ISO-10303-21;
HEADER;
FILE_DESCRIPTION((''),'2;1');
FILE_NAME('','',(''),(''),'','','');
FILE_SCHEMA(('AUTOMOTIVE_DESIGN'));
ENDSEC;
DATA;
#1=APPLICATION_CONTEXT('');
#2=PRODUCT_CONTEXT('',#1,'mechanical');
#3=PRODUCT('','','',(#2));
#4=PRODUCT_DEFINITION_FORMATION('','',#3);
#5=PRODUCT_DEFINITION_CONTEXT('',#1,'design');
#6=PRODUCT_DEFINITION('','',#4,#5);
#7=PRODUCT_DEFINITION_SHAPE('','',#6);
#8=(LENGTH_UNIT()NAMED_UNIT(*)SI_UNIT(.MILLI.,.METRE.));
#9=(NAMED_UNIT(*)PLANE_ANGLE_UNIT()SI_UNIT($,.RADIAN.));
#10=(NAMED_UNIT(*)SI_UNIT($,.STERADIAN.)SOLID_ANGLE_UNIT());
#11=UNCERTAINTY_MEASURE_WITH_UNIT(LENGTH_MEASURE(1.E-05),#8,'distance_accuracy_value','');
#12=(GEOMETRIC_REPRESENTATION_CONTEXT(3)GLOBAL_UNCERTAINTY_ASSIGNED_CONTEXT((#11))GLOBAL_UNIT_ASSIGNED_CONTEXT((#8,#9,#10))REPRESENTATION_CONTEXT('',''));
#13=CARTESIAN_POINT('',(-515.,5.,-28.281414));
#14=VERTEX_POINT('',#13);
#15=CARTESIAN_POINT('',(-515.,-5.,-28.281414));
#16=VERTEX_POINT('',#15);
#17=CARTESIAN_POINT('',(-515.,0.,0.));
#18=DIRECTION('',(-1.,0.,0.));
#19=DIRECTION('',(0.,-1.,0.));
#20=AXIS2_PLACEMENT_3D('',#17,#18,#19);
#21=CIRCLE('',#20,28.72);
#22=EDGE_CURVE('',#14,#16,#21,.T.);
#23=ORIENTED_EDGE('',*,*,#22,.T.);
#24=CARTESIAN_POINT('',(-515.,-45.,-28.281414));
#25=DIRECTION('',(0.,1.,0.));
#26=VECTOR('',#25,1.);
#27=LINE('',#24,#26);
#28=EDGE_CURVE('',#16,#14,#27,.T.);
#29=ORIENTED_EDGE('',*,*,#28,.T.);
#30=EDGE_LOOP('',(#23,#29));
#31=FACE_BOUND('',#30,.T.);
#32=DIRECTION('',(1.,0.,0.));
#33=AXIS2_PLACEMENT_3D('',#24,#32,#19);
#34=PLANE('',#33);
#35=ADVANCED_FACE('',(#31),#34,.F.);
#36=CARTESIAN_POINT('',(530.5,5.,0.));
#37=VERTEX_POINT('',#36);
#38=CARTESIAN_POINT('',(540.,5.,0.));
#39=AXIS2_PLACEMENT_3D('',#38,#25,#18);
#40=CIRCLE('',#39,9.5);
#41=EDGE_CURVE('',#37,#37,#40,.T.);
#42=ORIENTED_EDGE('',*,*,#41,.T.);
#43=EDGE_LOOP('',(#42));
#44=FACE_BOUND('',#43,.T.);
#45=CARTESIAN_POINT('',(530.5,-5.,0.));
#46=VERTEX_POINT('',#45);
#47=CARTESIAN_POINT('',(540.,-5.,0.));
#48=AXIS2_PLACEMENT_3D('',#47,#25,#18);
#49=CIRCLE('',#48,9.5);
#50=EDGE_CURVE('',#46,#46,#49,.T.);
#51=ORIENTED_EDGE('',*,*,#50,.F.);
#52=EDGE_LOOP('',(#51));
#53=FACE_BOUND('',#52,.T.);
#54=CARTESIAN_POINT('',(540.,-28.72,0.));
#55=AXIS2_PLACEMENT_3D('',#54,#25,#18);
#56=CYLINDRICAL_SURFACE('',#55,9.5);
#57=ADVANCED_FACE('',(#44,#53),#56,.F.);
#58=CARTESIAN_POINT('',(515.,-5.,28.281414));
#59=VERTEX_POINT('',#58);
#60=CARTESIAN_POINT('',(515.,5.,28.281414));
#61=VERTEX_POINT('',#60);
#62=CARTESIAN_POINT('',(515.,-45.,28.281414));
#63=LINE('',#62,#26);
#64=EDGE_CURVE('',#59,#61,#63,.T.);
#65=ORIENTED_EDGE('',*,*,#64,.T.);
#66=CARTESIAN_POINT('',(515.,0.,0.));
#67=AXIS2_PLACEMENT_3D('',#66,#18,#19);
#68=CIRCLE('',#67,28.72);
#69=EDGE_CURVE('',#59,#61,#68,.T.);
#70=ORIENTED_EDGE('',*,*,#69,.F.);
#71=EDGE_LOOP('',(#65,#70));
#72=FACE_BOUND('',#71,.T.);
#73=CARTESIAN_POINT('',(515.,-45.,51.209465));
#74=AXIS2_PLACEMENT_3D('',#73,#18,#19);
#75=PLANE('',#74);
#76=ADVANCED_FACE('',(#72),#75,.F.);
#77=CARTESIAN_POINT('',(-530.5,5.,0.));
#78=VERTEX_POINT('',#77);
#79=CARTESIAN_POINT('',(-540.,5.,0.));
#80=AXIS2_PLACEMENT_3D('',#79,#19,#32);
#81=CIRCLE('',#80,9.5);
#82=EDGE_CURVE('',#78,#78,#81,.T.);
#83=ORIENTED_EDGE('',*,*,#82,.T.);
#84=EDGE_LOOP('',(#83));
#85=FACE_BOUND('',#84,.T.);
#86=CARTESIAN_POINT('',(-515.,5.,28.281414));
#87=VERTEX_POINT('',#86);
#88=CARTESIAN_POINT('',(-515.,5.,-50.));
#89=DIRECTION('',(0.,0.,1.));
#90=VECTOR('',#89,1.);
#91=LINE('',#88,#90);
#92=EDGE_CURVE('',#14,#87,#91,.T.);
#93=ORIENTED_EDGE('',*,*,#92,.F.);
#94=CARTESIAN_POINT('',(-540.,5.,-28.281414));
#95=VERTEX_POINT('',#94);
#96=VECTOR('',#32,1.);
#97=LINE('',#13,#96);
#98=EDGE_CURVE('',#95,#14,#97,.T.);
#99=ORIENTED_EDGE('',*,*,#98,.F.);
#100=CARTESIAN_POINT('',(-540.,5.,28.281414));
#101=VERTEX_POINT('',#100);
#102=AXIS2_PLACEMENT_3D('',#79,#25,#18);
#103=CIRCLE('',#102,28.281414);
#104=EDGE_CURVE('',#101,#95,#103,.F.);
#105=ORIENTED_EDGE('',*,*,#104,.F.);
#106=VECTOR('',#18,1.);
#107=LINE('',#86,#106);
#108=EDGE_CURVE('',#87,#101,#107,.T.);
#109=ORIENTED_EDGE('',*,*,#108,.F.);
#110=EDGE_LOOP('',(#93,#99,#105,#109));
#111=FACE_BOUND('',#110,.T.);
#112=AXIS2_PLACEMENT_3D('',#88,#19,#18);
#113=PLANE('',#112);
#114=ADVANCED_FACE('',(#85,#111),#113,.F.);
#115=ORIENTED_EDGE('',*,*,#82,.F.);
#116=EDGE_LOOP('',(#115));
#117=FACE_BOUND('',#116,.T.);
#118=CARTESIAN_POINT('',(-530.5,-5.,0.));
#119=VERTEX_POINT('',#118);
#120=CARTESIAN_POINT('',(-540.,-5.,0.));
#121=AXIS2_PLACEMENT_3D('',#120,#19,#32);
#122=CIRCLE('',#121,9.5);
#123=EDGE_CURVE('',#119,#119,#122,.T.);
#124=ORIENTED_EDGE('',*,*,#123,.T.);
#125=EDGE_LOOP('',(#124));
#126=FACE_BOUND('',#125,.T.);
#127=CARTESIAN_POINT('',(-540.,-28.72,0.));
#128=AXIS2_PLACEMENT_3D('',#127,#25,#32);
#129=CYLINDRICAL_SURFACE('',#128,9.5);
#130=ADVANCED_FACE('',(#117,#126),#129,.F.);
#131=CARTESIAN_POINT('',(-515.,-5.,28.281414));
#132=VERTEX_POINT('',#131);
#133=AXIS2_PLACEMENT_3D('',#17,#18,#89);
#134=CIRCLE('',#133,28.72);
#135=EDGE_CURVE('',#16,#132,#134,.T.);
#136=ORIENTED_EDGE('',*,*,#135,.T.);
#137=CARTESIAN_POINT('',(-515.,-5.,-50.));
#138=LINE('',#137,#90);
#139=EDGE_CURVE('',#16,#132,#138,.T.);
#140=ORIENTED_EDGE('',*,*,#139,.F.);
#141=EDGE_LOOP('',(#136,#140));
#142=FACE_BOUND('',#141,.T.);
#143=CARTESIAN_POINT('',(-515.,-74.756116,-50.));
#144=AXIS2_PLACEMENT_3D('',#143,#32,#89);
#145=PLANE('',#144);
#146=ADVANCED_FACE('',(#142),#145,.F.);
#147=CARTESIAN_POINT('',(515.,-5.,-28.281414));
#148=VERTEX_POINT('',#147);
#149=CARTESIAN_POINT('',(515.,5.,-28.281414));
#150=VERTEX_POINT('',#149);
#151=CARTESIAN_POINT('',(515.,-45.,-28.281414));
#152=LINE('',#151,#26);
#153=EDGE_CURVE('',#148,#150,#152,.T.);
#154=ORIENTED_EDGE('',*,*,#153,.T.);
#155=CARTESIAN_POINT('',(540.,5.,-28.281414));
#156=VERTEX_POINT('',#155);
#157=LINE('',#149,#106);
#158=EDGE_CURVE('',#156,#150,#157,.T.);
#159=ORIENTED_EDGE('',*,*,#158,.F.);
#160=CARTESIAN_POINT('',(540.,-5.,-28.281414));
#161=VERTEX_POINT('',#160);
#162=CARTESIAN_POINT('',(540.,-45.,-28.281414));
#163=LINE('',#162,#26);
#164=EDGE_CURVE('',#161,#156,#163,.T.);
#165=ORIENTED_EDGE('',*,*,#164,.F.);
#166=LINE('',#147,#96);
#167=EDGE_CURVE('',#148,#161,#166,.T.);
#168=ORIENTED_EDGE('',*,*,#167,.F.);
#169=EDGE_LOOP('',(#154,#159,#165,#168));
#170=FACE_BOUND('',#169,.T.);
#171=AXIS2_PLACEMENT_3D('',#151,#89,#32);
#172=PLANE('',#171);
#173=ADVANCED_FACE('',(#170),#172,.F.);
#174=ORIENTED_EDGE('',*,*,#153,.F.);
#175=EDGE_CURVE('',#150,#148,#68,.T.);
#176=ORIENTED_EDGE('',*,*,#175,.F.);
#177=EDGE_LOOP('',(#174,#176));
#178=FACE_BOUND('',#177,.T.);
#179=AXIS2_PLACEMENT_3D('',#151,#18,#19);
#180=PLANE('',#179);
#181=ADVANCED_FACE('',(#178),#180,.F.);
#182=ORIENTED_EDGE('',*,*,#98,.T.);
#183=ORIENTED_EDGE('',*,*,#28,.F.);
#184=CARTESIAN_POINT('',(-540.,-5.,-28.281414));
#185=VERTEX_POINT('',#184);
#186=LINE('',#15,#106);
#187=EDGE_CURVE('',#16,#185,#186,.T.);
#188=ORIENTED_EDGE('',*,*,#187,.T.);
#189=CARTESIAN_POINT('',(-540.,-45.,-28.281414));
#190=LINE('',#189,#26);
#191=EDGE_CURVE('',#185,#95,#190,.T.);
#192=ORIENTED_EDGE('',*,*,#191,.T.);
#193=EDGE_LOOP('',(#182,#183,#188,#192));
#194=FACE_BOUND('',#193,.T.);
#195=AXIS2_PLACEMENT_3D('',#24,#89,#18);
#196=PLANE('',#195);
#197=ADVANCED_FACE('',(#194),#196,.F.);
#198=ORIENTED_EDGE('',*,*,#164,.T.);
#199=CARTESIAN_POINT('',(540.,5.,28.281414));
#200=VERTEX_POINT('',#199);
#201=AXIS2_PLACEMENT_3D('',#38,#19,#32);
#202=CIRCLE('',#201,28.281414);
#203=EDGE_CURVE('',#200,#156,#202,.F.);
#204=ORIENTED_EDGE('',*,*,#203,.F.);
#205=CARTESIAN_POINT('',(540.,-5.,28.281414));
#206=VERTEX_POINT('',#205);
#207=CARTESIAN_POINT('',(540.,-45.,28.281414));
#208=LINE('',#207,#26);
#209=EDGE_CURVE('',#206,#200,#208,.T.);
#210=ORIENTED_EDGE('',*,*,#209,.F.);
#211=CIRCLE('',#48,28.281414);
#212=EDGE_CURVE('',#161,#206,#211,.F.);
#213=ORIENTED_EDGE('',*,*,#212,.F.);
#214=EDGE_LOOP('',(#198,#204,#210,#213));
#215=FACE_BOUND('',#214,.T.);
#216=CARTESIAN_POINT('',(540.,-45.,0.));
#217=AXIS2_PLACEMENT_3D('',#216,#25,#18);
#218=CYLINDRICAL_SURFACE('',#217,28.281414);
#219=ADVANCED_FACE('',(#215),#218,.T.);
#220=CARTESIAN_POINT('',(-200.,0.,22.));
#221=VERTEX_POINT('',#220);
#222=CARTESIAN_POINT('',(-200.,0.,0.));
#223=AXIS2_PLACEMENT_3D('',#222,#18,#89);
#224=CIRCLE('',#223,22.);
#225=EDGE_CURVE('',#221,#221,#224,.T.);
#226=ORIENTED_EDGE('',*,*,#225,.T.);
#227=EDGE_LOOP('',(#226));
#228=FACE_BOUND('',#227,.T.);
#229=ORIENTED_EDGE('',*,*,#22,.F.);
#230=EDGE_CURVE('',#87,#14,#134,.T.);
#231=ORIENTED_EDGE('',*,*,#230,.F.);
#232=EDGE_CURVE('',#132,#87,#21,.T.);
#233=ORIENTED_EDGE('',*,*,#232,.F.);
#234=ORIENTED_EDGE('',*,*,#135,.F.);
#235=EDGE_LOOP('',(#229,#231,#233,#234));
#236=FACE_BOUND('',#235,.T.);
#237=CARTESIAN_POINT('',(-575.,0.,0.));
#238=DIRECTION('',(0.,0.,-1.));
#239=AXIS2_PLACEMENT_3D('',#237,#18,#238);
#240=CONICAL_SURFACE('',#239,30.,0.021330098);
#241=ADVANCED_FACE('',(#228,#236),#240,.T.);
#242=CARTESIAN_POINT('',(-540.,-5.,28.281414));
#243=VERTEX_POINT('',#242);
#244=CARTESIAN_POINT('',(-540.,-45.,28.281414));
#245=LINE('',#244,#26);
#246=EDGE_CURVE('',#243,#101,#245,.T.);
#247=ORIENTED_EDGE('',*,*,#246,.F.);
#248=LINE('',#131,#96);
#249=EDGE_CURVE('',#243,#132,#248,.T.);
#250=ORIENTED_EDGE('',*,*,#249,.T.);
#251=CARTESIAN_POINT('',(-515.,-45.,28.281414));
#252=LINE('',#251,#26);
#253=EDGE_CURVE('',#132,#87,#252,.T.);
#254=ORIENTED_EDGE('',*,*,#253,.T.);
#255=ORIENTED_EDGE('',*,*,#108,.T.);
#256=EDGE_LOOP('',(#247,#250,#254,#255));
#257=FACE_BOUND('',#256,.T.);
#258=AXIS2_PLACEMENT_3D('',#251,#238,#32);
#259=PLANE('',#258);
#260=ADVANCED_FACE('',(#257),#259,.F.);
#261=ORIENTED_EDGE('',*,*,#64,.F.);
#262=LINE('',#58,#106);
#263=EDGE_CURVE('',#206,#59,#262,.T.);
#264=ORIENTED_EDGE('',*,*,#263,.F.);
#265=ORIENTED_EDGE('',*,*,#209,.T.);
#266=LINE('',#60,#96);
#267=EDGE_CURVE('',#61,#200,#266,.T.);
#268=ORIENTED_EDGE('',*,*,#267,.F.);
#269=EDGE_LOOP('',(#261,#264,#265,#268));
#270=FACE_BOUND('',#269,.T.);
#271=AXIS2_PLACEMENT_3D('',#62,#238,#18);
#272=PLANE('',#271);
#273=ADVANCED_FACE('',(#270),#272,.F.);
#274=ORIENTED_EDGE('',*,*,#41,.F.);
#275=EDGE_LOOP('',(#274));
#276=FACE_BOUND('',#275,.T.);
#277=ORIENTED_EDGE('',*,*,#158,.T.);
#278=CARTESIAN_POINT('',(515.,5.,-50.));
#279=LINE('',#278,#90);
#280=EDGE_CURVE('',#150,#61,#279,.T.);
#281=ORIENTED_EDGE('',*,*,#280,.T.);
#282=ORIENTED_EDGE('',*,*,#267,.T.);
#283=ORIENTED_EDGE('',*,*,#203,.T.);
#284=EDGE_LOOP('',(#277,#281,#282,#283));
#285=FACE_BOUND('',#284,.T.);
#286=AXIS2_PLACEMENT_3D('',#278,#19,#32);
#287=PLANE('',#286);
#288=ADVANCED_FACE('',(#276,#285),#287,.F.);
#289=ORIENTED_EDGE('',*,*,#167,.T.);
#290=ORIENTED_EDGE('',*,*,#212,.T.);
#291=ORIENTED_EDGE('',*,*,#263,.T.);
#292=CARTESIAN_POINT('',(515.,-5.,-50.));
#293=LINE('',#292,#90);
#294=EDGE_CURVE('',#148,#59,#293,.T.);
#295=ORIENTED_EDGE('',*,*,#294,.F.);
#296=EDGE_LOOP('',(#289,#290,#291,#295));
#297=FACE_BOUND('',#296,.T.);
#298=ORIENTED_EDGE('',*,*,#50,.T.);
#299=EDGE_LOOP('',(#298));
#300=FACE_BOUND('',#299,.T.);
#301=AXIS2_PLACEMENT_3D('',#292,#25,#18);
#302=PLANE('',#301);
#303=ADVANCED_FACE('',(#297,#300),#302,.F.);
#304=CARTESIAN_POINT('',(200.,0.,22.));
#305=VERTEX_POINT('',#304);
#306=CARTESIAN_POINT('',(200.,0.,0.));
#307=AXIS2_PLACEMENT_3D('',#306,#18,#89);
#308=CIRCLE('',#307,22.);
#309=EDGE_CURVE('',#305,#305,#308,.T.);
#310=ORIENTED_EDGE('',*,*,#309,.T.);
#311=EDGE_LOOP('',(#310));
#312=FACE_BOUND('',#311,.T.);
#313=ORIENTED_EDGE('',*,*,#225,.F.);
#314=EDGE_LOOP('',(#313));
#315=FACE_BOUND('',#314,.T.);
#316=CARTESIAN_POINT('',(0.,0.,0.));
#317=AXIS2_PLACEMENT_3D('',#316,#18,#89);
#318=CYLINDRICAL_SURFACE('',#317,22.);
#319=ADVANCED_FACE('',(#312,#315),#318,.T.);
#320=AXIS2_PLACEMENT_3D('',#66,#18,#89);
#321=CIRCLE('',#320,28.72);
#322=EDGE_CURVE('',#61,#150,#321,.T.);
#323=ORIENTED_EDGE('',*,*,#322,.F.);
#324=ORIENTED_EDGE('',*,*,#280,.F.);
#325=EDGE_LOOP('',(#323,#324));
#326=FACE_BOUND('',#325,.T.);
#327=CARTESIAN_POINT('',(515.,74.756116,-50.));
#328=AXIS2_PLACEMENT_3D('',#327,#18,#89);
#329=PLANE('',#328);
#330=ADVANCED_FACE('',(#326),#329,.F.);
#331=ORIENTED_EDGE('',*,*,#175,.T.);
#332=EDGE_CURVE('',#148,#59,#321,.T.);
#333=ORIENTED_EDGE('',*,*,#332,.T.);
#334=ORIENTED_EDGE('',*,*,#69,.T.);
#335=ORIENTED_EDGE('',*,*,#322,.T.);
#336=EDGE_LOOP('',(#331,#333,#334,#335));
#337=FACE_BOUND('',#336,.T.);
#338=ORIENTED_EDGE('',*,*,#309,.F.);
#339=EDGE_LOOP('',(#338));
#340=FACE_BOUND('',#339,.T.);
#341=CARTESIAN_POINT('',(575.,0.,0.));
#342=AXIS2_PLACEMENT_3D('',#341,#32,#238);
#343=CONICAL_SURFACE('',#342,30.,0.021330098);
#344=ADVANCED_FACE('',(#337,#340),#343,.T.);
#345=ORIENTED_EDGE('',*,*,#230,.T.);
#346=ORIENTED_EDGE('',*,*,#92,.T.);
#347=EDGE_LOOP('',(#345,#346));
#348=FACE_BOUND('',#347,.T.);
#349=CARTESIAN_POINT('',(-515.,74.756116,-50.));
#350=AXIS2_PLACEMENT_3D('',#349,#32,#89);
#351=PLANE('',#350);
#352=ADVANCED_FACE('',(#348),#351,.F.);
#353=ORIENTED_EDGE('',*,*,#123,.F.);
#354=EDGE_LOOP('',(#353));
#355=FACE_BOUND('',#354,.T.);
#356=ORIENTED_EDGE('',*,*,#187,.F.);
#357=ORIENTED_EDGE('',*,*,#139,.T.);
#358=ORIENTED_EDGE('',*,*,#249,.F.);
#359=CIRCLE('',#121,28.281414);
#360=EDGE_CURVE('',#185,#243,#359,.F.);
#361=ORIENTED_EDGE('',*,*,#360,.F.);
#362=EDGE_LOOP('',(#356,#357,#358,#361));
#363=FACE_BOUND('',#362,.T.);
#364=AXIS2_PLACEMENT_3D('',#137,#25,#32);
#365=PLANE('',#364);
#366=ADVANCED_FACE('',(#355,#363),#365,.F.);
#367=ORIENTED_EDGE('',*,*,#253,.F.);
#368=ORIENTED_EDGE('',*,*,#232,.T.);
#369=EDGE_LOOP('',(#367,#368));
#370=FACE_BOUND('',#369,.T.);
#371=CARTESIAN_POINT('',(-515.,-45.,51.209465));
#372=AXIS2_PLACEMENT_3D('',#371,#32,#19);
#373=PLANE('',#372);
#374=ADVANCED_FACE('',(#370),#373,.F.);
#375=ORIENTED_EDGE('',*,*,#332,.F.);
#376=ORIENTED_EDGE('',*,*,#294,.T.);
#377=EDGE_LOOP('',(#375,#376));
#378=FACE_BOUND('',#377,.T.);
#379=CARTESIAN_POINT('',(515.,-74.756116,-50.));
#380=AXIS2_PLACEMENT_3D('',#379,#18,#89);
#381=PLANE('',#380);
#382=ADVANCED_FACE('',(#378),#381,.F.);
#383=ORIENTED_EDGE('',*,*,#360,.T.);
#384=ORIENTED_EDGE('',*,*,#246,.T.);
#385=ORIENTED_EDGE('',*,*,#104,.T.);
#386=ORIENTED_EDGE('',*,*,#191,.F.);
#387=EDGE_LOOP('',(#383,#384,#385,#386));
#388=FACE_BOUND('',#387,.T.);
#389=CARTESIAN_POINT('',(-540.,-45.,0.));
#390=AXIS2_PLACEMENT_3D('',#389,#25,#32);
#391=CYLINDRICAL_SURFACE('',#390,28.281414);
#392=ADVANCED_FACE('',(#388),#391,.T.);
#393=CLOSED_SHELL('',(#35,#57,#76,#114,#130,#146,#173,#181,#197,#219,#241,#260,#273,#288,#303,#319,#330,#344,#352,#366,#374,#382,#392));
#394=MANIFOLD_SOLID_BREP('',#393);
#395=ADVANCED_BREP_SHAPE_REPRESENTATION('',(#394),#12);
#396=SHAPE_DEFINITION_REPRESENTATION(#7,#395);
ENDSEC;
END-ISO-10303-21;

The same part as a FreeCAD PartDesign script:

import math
import FreeCAD as App
import Part
import Sketcher
Q = App.Units.Quantity


def add_polygon(sketch, points):
    """Adds a closed chain of lines whose ends are joined by coincident constraints."""
    first, n = sketch.GeometryCount, len(points)
    for a, b in zip(points, points[1:] + points[:1]):
        sketch.addGeometry(Part.LineSegment(App.Vector(*a, 0), App.Vector(*b, 0)), False)
    for i in range(n):
        sketch.addConstraint(Sketcher.Constraint("Coincident", first + i, 2, first + (i + 1) % n, 1))

doc = App.newDocument("Part")
body = doc.addObject("PartDesign::Body", "Body")

sketch1 = body.newObject("Sketcher::SketchObject", "Sketch")
sketch1.AttachmentSupport = (doc.getObject("XZ_Plane"), [""])
sketch1.MapMode = "FlatFace"
add_polygon(sketch1, [(0, 0), (575, 0), (575, -30), (200, -22), (0, -22)])
sketch1.addConstraint([
    Sketcher.Constraint("Horizontal", 0),
    Sketcher.Constraint("Vertical", 1),
    Sketcher.Constraint("Horizontal", 3),
    Sketcher.Constraint("Vertical", 4),
    Sketcher.Constraint("Coincident", 4, 2, -1, 1),
    Sketcher.Constraint("DistanceX", 0, 1, 0, 2, Q("575 mm")),
    Sketcher.Constraint("DistanceX", 3, 2, 3, 1, Q("200 mm")),
    Sketcher.Constraint("DistanceY", 1, 2, 1, 1, Q("30 mm")),
    Sketcher.Constraint("DistanceY", 4, 1, 4, 2, Q("22 mm")),
])
revolution = body.newObject("PartDesign::Revolution", "Revolution")
revolution.Profile = sketch1
revolution.ReferenceAxis = (sketch1, ["H_Axis"])
revolution.Angle = 360

sketch2 = body.newObject("Sketcher::SketchObject", "Sketch001")
sketch2.AttachmentSupport = (doc.getObject("XY_Plane"), [""])
sketch2.MapMode = "FlatFace"
add_polygon(sketch2, [(515, 74.756116), (515, 5), (615.542277, 5), (615.542277, 74.756116)])
add_polygon(sketch2, [(515, -5), (515, -74.756116), (615.542277, -74.756116), (615.542277, -5)])
sketch2.addConstraint([
    Sketcher.Constraint("Vertical", 0),
    Sketcher.Constraint("Horizontal", 1),
    Sketcher.Constraint("Vertical", 2),
    Sketcher.Constraint("Horizontal", 3),
    Sketcher.Constraint("Vertical", 4),
    Sketcher.Constraint("Horizontal", 5),
    Sketcher.Constraint("Vertical", 6),
    Sketcher.Constraint("Horizontal", 7),
    Sketcher.Constraint("Symmetric", 3, 2, 4, 2, -1),
    Sketcher.Constraint("Symmetric", 1, 2, 6, 2, -1),
    Sketcher.Constraint("DistanceX", -1, 1, 0, 2, Q("515 mm")),
    Sketcher.Constraint("DistanceY", -1, 1, 0, 2, Q("5 mm")),
    Sketcher.Constraint("DistanceX", 1, 1, 1, 2, Q("100.542277 mm")),
    Sketcher.Constraint("DistanceY", 0, 2, 0, 1, Q("69.756116 mm")),
])
pocket1 = body.newObject("PartDesign::Pocket", "Pocket")
pocket1.Profile = sketch2
pocket1.Length = 100
pocket1.Midplane = True

sketch3 = body.newObject("Sketcher::SketchObject", "Sketch002")
sketch3.AttachmentSupport = (doc.getObject("XZ_Plane"), [""])
sketch3.MapMode = "FlatFace"
sketch3.AttachmentOffset = App.Placement(App.Vector(0, 0, -5), App.Rotation())
sketch3.addGeometry([
    Part.LineSegment(App.Vector(515, -28.281414, 0), App.Vector(540, -28.281414, 0)),
    Part.ArcOfCircle(Part.Circle(App.Vector(540, 0, 0), App.Vector(0, 0, 1), 28.281414), math.radians(-90), math.radians(90)),
    Part.LineSegment(App.Vector(540, 28.281414, 0), App.Vector(515, 28.281414, 0)),
    Part.LineSegment(App.Vector(515, 28.281414, 0), App.Vector(515, 51.209465, 0)),
    Part.LineSegment(App.Vector(515, 51.209465, 0), App.Vector(609.780087, 51.209465, 0)),
    Part.LineSegment(App.Vector(609.780087, 51.209465, 0), App.Vector(609.780087, -50.020401, 0)),
    Part.LineSegment(App.Vector(609.780087, -50.020401, 0), App.Vector(515, -50.020401, 0)),
    Part.LineSegment(App.Vector(515, -50.020401, 0), App.Vector(515, -28.281414, 0)),
], False)
sketch3.addConstraint([
    Sketcher.Constraint("Tangent", 0, 2, 1, 1),
    Sketcher.Constraint("Tangent", 1, 2, 2, 1),
    Sketcher.Constraint("Coincident", 2, 2, 3, 1),
    Sketcher.Constraint("Coincident", 3, 2, 4, 1),
    Sketcher.Constraint("Coincident", 4, 2, 5, 1),
    Sketcher.Constraint("Coincident", 5, 2, 6, 1),
    Sketcher.Constraint("Coincident", 6, 2, 7, 1),
    Sketcher.Constraint("Coincident", 7, 2, 0, 1),
    Sketcher.Constraint("Horizontal", 0),
    Sketcher.Constraint("Horizontal", 2),
    Sketcher.Constraint("Vertical", 3),
    Sketcher.Constraint("Horizontal", 4),
    Sketcher.Constraint("Vertical", 5),
    Sketcher.Constraint("Horizontal", 6),
    Sketcher.Constraint("Vertical", 7),
    Sketcher.Constraint("Symmetric", 2, 2, 7, 2, -1),
    Sketcher.Constraint("DistanceX", 0, 1, 0, 2, Q("25 mm")),
    Sketcher.Constraint("DistanceX", -1, 1, 1, 3, Q("540 mm")),
    Sketcher.Constraint("Radius", 1, Q("28.281414 mm")),
    Sketcher.Constraint("DistanceY", 3, 1, 3, 2, Q("22.928051 mm")),
    Sketcher.Constraint("DistanceY", 5, 2, -1, 1, Q("50.020401 mm")),
    Sketcher.Constraint("DistanceX", 4, 1, 4, 2, Q("94.780087 mm")),
])
pocket2 = body.newObject("PartDesign::Pocket", "Pocket001")
pocket2.Profile = sketch3
pocket2.Length = 100
pocket2.Midplane = True

sketch4 = body.newObject("Sketcher::SketchObject", "Sketch003")
sketch4.AttachmentSupport = (doc.getObject("XZ_Plane"), [""])
sketch4.MapMode = "FlatFace"
sketch4.AttachmentOffset = App.Placement(App.Vector(0, 0, -5), App.Rotation())
sketch4.addGeometry(Part.Circle(App.Vector(540, 0, 0), App.Vector(0, 0, 1), 9.5), False)
sketch4.addConstraint([
    Sketcher.Constraint("PointOnObject", 0, 3, -1),
    Sketcher.Constraint("Diameter", 0, Q("19 mm")),
    Sketcher.Constraint("DistanceX", -1, 1, 0, 3, Q("540 mm")),
])
pocket3 = body.newObject("PartDesign::Pocket", "Pocket002")
pocket3.Profile = sketch4
pocket3.Type = "ThroughAll"
pocket3.Reversed = True
body2 = doc.addObject("PartDesign::Body", "Body001")
doc.recompute()

body2.BaseFeature = body
doc.recompute()

mirroring = doc.addObject("Part::Mirroring", "Mirroring")
mirroring.Source = body
mirroring.Base = App.Vector(0, 0, -22)
mirroring.Normal = App.Vector(1, 0, 0)
body3 = doc.addObject("PartDesign::Body", "Body002")
body3.BaseFeature = mirroring
boolean = body2.newObject("PartDesign::Boolean", "Boolean")
boolean.Type = "Fuse"
boolean.addObjects([body3])
doc.recompute()
mirroring.Visibility = False

doc.recompute()
